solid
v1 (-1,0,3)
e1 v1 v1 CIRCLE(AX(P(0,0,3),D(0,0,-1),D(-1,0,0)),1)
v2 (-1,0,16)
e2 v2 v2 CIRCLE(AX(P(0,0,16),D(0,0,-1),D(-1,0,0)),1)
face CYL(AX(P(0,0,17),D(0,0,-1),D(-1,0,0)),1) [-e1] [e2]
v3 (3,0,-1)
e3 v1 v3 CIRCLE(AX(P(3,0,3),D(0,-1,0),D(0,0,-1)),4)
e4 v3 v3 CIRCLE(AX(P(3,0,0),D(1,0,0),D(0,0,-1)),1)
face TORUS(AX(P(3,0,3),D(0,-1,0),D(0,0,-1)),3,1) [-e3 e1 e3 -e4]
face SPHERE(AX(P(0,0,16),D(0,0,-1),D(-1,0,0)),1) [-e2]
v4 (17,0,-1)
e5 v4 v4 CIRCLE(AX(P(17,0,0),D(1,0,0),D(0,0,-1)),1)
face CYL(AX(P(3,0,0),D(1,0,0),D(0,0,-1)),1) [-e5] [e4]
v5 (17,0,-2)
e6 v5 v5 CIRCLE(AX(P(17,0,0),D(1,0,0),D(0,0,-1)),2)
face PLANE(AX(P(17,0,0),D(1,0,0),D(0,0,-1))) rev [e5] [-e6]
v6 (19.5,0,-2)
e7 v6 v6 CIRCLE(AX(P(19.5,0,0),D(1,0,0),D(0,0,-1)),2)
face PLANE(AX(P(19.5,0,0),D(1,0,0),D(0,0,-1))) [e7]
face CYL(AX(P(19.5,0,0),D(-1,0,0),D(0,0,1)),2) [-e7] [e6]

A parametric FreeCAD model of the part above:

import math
import FreeCAD as App
import Part
import Sketcher


def edges_at(feature, points):
    """Names of the edges that pass closest to the given points."""
    edges = feature.Shape.Edges
    near = lambda p: min(range(len(edges)), key=lambda i: edges[i].distToShape(Part.Vertex(*p))[0])
    return sorted({f"Edge{near(p) + 1}" for p in points})

doc = App.newDocument("Part")
body = doc.addObject("PartDesign::Body", "Body")

sketch1 = body.newObject("Sketcher::SketchObject", "Sketch")
sketch1.AttachmentSupport = (doc.getObject("YZ_Plane"), [""])
sketch1.MapMode = "FlatFace"
sketch1.AttachmentOffset = App.Placement(App.Vector(0, 0, 17), App.Rotation())
sketch1.addGeometry(Part.Circle(App.Vector(0, 0, 0), App.Vector(0, 0, 1), 1), False)
sketch1.addConstraint([
    Sketcher.Constraint("Coincident", 0, 3, -1, 1),
    Sketcher.Constraint("Diameter", 0, 2.0),
])

sketch2 = body.newObject("Sketcher::SketchObject", "Sketch001")
sketch2.AttachmentSupport = (doc.getObject("XZ_Plane"), [""])
sketch2.MapMode = "FlatFace"
sketch2.addGeometry([
    Part.LineSegment(App.Vector(0, 17, 0), App.Vector(0, 3, 0)),
    Part.ArcOfCircle(Part.Circle(App.Vector(3, 3, 0), App.Vector(0, 0, 1), 3), math.radians(180), math.radians(270)),
    Part.LineSegment(App.Vector(3, 0, 0), App.Vector(17, 0, 0)),
], False)
sketch2.addConstraint([
    Sketcher.Constraint("Tangent", 0, 2, 1, 1),
    Sketcher.Constraint("Tangent", 1, 2, 2, 1),
    Sketcher.Constraint("Vertical", 0),
    Sketcher.Constraint("Horizontal", 2),
    Sketcher.Constraint("PointOnObject", 0, 1, -2),
    Sketcher.Constraint("PointOnObject", 1, 2, -1),
    Sketcher.Constraint("Equal", 2, 0),
    Sketcher.Constraint("Radius", 1, 3.0),
    Sketcher.Constraint("DistanceX", 2, 1, 2, 2, 14.0),
])
doc.recompute()

additivepipe = body.newObject("PartDesign::AdditivePipe", "AdditivePipe")
additivepipe.Profile = sketch1
additivepipe.Spine = (sketch2, ["Edge1", "Edge2", "Edge3"])
doc.recompute()

fillet = body.newObject("PartDesign::Fillet", "Fillet")
fillet.Base = (additivepipe, edges_at(additivepipe, [(1, 0, 17)]))
fillet.Radius = 1

sketch3 = body.newObject("Sketcher::SketchObject", "Sketch002")
sketch3.AttachmentSupport = (doc.getObject("YZ_Plane"), [""])
sketch3.MapMode = "FlatFace"
sketch3.AttachmentOffset = App.Placement(App.Vector(0, 0, 17), App.Rotation())
sketch3.addGeometry(Part.Circle(App.Vector(0, 0, 0), App.Vector(0, 0, 1), 2), False)
sketch3.addConstraint([
    Sketcher.Constraint("Coincident", 0, 3, -1, 1),
    Sketcher.Constraint("Diameter", 0, 4.0),
])
pad1 = body.newObject("PartDesign::Pad", "Pad")
pad1.Profile = sketch3
pad1.Length = 2.5

doc.recompute()
